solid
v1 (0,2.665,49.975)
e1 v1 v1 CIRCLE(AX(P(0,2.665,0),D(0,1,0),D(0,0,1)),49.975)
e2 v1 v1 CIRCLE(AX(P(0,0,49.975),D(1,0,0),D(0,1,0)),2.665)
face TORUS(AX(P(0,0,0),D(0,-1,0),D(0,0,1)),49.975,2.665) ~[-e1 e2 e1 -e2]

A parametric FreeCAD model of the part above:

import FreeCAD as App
import Part
import Sketcher
from FreeCAD import Vector
Q = App.Units.Quantity

doc = App.newDocument("Part")
body = doc.addObject("PartDesign::Body", "Body")

# Sketch on YZ plane
sketch1 = body.newObject("Sketcher::SketchObject", "Sketch")
sketch1.AttachmentSupport = (doc.getObject("YZ_Plane"), [""])
sketch1.MapMode = "FlatFace"
sketch1.addGeometry(Part.Circle(Vector(0, 50, 0), Vector(0, 0, 1), 2.7), False)
sketch1.addConstraint([
    Sketcher.Constraint("PointOnObject", 0, 3, -2),
    Sketcher.Constraint("Diameter", 0, Q("5.33 mm")),
    Sketcher.Constraint("DistanceY", -1, 1, 0, 3, Q("49.975 mm")),
])
revolution = body.newObject("PartDesign::Revolution", "Revolution")
revolution.Profile = sketch1
revolution.ReferenceAxis = (sketch1, ["H_Axis"])
revolution.Angle = 360

doc.recompute()
